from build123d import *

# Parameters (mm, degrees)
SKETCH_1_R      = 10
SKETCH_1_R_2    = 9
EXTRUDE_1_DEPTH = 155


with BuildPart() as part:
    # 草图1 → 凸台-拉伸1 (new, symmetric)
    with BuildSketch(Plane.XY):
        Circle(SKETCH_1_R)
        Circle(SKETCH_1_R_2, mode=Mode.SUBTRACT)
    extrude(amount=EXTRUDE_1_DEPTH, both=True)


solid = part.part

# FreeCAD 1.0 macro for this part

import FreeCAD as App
import Part
import Sketcher

V = App.Vector
Q = App.Units.Quantity

doc = App.newDocument("Part")
body = doc.addObject("PartDesign::Body", "Body")

# Sketch on XY plane
sketch1 = doc.addObject("Sketcher::SketchObject", "Sketch")
body.addObject(sketch1)
sketch1.AttachmentSupport = (doc.XY_Plane, [""])
sketch1.MapMode = "FlatFace"
sketch1.addGeometry(Part.Circle(V(0, 0, 0), V(0, 0, 1), 10), False)
sketch1.addGeometry(Part.Circle(V(0, 0, 0), V(0, 0, 1), 9), False)
sketch1.addConstraint(Sketcher.Constraint("Coincident", 0, 3, -1, 1))
sketch1.addConstraint(Sketcher.Constraint("Coincident", 1, 3, -1, 1))
sketch1.addConstraint(Sketcher.Constraint("Diameter", 0, Q("20 mm")))
sketch1.addConstraint(Sketcher.Constraint("Diameter", 1, Q("18 mm")))
pad1 = doc.addObject("PartDesign::Pad", "Pad")
body.addObject(pad1)
pad1.Profile = sketch1
pad1.Length = 310
pad1.Midplane = True

doc.recompute()
